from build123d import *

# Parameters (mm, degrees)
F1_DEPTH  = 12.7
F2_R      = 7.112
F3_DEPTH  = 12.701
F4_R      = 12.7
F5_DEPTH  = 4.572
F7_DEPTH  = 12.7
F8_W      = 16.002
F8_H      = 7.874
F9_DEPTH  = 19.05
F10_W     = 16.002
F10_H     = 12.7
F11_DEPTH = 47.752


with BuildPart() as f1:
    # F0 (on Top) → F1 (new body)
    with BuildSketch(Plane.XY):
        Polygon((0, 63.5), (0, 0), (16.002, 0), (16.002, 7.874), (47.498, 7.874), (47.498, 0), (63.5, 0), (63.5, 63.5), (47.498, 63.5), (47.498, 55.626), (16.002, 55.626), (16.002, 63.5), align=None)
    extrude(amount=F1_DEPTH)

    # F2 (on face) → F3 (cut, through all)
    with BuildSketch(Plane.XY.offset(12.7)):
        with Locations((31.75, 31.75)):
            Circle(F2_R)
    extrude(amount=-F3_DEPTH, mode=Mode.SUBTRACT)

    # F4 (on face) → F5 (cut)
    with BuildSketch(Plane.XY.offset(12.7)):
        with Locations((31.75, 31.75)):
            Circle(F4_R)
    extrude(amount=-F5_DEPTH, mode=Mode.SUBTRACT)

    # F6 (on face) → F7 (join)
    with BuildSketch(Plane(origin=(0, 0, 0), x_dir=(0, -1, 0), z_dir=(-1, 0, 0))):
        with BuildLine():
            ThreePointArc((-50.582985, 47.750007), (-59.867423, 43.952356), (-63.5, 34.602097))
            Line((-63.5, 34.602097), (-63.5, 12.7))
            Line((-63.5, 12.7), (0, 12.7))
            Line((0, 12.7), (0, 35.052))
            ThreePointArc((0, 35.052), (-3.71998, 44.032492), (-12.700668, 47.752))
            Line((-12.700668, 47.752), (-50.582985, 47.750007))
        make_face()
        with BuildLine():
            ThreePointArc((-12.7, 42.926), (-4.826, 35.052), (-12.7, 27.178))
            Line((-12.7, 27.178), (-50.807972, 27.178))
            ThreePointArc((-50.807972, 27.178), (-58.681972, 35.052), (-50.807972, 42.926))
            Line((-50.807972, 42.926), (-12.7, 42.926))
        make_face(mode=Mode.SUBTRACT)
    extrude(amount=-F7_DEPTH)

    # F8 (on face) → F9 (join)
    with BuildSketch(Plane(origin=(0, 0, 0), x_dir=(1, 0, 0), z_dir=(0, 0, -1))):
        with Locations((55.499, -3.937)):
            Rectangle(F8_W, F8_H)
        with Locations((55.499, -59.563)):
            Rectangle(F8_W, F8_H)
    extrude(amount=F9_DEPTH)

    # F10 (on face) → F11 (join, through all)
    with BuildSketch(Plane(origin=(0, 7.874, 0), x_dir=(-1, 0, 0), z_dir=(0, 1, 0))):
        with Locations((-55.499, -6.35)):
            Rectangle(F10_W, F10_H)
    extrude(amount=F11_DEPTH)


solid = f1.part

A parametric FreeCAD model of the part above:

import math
import FreeCAD as App
import Part
import Sketcher
Q = App.Units.Quantity


def add_polygon(sketch, points):
    """Adds a closed chain of lines whose ends are joined by coincident constraints."""
    first, n = sketch.GeometryCount, len(points)
    for a, b in zip(points, points[1:] + points[:1]):
        sketch.addGeometry(Part.LineSegment(App.Vector(*a, 0), App.Vector(*b, 0)), False)
    for i in range(n):
        sketch.addConstraint(Sketcher.Constraint("Coincident", first + i, 2, first + (i + 1) % n, 1))

doc = App.newDocument("Part")
body = doc.addObject("PartDesign::Body", "Body")

sketch1 = body.newObject("Sketcher::SketchObject", "Sketch")
sketch1.AttachmentSupport = (doc.getObject("XY_Plane"), [""])
sketch1.MapMode = "FlatFace"
add_polygon(sketch1, [(0, 64), (0, 0), (16, 0), (16, 8), (47, 8), (47, 0), (64, 0), (64, 64), (47, 64), (47, 56), (16, 56), (16, 64)])
sketch1.addConstraint([
    Sketcher.Constraint("Vertical", 0),
    Sketcher.Constraint("Horizontal", 1),
    Sketcher.Constraint("Vertical", 2),
    Sketcher.Constraint("Horizontal", 3),
    Sketcher.Constraint("Vertical", 4),
    Sketcher.Constraint("Horizontal", 5),
    Sketcher.Constraint("Vertical", 6),
    Sketcher.Constraint("Horizontal", 7),
    Sketcher.Constraint("Vertical", 8),
    Sketcher.Constraint("Horizontal", 9),
    Sketcher.Constraint("Vertical", 10),
    Sketcher.Constraint("Horizontal", 11),
    Sketcher.Constraint("Coincident", 0, 2, -1, 1),
    Sketcher.Constraint("PointOnObject", 4, 2, -1),
    Sketcher.Constraint("Horizontal", 7, 2, 10, 2),
    Sketcher.Constraint("Vertical", 4, 2, 7, 2),
    Sketcher.Constraint("Vertical", 2, 2, 9, 2),
    Sketcher.Constraint("Equal", 1, 5),
    Sketcher.Constraint("Equal", 4, 8),
    Sketcher.Constraint("DistanceY", 0, 2, 0, 1, Q("2.5 in")),
    Sketcher.Constraint("DistanceX", 1, 1, 1, 2, Q("0.63 in")),
    Sketcher.Constraint("DistanceX", 3, 1, 3, 2, Q("1.24 in")),
    Sketcher.Constraint("DistanceY", 2, 1, 2, 2, Q("0.31 in")),
])
pad1 = body.newObject("PartDesign::Pad", "Pad")
pad1.Profile = sketch1
pad1.Length = Q("0.5 in")

sketch2 = body.newObject("Sketcher::SketchObject", "Sketch001")
sketch2.AttachmentSupport = (doc.getObject("XY_Plane"), [""])
sketch2.MapMode = "FlatFace"
sketch2.AttachmentOffset = App.Placement(App.Vector(0, 0, 0.5 * 25.4), App.Rotation())
sketch2.addGeometry(Part.Circle(App.Vector(32, 32, 0), App.Vector(0, 0, 1), 7), False)
sketch2.addConstraint([
    Sketcher.Constraint("Diameter", 0, Q("0.56 in")),
    Sketcher.Constraint("DistanceX", -1, 1, 0, 3, Q("1.25 in")),
    Sketcher.Constraint("DistanceY", -1, 1, 0, 3, Q("1.25 in")),
])
pocket1 = body.newObject("PartDesign::Pocket", "Pocket")
pocket1.Profile = sketch2
pocket1.Type = "ThroughAll"

sketch3 = body.newObject("Sketcher::SketchObject", "Sketch002")
sketch3.AttachmentSupport = (doc.getObject("XY_Plane"), [""])
sketch3.MapMode = "FlatFace"
sketch3.AttachmentOffset = App.Placement(App.Vector(0, 0, 0.5 * 25.4), App.Rotation())
sketch3.addGeometry(Part.Circle(App.Vector(32, 32, 0), App.Vector(0, 0, 1), 13), False)
sketch3.addConstraint([
    Sketcher.Constraint("Diameter", 0, Q("1 in")),
    Sketcher.Constraint("DistanceX", -1, 1, 0, 3, Q("1.25 in")),
    Sketcher.Constraint("DistanceY", -1, 1, 0, 3, Q("1.25 in")),
])
pocket2 = body.newObject("PartDesign::Pocket", "Pocket001")
pocket2.Profile = sketch3
pocket2.Length = Q("0.18 in")

sketch4 = body.newObject("Sketcher::SketchObject", "Sketch003")
sketch4.AttachmentSupport = (doc.getObject("YZ_Plane"), [""])
sketch4.MapMode = "FlatFace"
sketch4.addGeometry([
    Part.ArcOfCircle(Part.Circle(App.Vector(51, 35, 0), App.Vector(0, 0, 1), 13), math.radians(-2), math.radians(91)),
    Part.LineSegment(App.Vector(64, 35, 0), App.Vector(64, 13, 0)),
    Part.LineSegment(App.Vector(64, 13, 0), App.Vector(0, 13, 0)),
    Part.LineSegment(App.Vector(0, 13, 0), App.Vector(0, 35, 0)),
    Part.ArcOfCircle(Part.Circle(App.Vector(13, 35, 0), App.Vector(0, 0, 1), 13), math.radians(90), math.radians(180)),
    Part.LineSegment(App.Vector(13, 48, 0), App.Vector(51, 48, 0)),
    Part.LineSegment(App.Vector(51, 43, 0), App.Vector(13, 43, 0)),
    Part.ArcOfCircle(Part.Circle(App.Vector(13, 35, 0), App.Vector(0, 0, 1), 8), math.radians(90), math.radians(270)),
    Part.LineSegment(App.Vector(13, 27, 0), App.Vector(51, 27, 0)),
    Part.ArcOfCircle(Part.Circle(App.Vector(51, 35, 0), App.Vector(0, 0, 1), 8), math.radians(-90), math.radians(90)),
], False)
sketch4.addConstraint([
    Sketcher.Constraint("Coincident", 0, 1, 1, 1),
    Sketcher.Constraint("Coincident", 1, 2, 2, 1),
    Sketcher.Constraint("Coincident", 2, 2, 3, 1),
    Sketcher.Constraint("Tangent", 3, 2, 4, 2),
    Sketcher.Constraint("Tangent", 4, 1, 5, 1),
    Sketcher.Constraint("Coincident", 5, 2, 0, 2),
    Sketcher.Constraint("Tangent", 6, 2, 7, 1),
    Sketcher.Constraint("Tangent", 7, 2, 8, 1),
    Sketcher.Constraint("Tangent", 8, 2, 9, 1),
    Sketcher.Constraint("Tangent", 9, 2, 6, 1),
    Sketcher.Constraint("Vertical", 1),
    Sketcher.Constraint("Horizontal", 2),
    Sketcher.Constraint("Vertical", 3),
    Sketcher.Constraint("Horizontal", 6),
    Sketcher.Constraint("Horizontal", 8),
    Sketcher.Constraint("Coincident", 7, 3, 4, 3),
    Sketcher.Constraint("Coincident", 9, 3, 0, 3),
    Sketcher.Constraint("Equal", 0, 4),
    Sketcher.Constraint("PointOnObject", 2, 2, -2),
    Sketcher.Constraint("Radius", 0, Q("0.5 in")),
    Sketcher.Constraint("Radius", 7, Q("0.31 in")),
    Sketcher.Constraint("DistanceX", 2, 2, 2, 1, Q("2.5 in")),
    Sketcher.Constraint("DistanceY", 3, 1, 3, 2, Q("0.88 in")),
    Sketcher.Constraint("DistanceY", -1, 1, 1, 2, Q("0.5 in")),
    Sketcher.Constraint("DistanceX", 6, 2, 6, 1, Q("38.107972 mm")),
    Sketcher.Constraint("Distance", 5, Q("37.882317 mm")),
])
pad2 = body.newObject("PartDesign::Pad", "Pad001")
pad2.Profile = sketch4
pad2.Length = Q("0.5 in")

sketch5 = body.newObject("Sketcher::SketchObject", "Sketch004")
sketch5.AttachmentSupport = (doc.getObject("XY_Plane"), [""])
sketch5.MapMode = "FlatFace"
add_polygon(sketch5, [(47, 0), (47, 8), (64, 8), (64, 0)])
add_polygon(sketch5, [(47, 56), (47, 64), (64, 64), (64, 56)])
sketch5.addConstraint([
    Sketcher.Constraint("Vertical", 0),
    Sketcher.Constraint("Horizontal", 1),
    Sketcher.Constraint("Vertical", 2),
    Sketcher.Constraint("Horizontal", 3),
    Sketcher.Constraint("Vertical", 4),
    Sketcher.Constraint("Horizontal", 5),
    Sketcher.Constraint("Vertical", 6),
    Sketcher.Constraint("Horizontal", 7),
    Sketcher.Constraint("PointOnObject", 2, 2, -1),
    Sketcher.Constraint("Vertical", 3, 2, 4, 2),
    Sketcher.Constraint("Vertical", 2, 2, 5, 2),
    Sketcher.Constraint("Equal", 2, 4),
    Sketcher.Constraint("DistanceX", 1, 1, 1, 2, Q("0.63 in")),
    Sketcher.Constraint("DistanceY", 0, 1, 0, 2, Q("0.31 in")),
    Sketcher.Constraint("DistanceX", -1, 1, 1, 2, Q("2.5 in")),
    Sketcher.Constraint("DistanceY", -1, 1, 4, 2, Q("2.5 in")),
])
pad3 = body.newObject("PartDesign::Pad", "Pad002")
pad3.Profile = sketch5
pad3.Length = Q("0.75 in")
pad3.Reversed = True

sketch6 = body.newObject("Sketcher::SketchObject", "Sketch005")
sketch6.AttachmentSupport = (doc.getObject("XZ_Plane"), [""])
sketch6.MapMode = "FlatFace"
sketch6.AttachmentOffset = App.Placement(App.Vector(0, 0, -0.31 * 25.4), App.Rotation())
add_polygon(sketch6, [(64, 0), (64, -13), (47, -13), (47, 0)])
sketch6.addConstraint([
    Sketcher.Constraint("Vertical", 0),
    Sketcher.Constraint("Horizontal", 1),
    Sketcher.Constraint("Vertical", 2),
    Sketcher.Constraint("Horizontal", 3),
    Sketcher.Constraint("PointOnObject", 2, 2, -1),
    Sketcher.Constraint("DistanceY", 0, 2, 0, 1, Q("0.5 in")),
    Sketcher.Constraint("DistanceX", 1, 2, 1, 1, Q("0.63 in")),
    Sketcher.Constraint("DistanceX", -1, 1, 0, 2, Q("2.5 in")),
])
pad4 = body.newObject("PartDesign::Pad", "Pad003")
pad4.Profile = sketch6
pad4.Type = "UpToLast"
pad4.Reversed = True

doc.recompute()
